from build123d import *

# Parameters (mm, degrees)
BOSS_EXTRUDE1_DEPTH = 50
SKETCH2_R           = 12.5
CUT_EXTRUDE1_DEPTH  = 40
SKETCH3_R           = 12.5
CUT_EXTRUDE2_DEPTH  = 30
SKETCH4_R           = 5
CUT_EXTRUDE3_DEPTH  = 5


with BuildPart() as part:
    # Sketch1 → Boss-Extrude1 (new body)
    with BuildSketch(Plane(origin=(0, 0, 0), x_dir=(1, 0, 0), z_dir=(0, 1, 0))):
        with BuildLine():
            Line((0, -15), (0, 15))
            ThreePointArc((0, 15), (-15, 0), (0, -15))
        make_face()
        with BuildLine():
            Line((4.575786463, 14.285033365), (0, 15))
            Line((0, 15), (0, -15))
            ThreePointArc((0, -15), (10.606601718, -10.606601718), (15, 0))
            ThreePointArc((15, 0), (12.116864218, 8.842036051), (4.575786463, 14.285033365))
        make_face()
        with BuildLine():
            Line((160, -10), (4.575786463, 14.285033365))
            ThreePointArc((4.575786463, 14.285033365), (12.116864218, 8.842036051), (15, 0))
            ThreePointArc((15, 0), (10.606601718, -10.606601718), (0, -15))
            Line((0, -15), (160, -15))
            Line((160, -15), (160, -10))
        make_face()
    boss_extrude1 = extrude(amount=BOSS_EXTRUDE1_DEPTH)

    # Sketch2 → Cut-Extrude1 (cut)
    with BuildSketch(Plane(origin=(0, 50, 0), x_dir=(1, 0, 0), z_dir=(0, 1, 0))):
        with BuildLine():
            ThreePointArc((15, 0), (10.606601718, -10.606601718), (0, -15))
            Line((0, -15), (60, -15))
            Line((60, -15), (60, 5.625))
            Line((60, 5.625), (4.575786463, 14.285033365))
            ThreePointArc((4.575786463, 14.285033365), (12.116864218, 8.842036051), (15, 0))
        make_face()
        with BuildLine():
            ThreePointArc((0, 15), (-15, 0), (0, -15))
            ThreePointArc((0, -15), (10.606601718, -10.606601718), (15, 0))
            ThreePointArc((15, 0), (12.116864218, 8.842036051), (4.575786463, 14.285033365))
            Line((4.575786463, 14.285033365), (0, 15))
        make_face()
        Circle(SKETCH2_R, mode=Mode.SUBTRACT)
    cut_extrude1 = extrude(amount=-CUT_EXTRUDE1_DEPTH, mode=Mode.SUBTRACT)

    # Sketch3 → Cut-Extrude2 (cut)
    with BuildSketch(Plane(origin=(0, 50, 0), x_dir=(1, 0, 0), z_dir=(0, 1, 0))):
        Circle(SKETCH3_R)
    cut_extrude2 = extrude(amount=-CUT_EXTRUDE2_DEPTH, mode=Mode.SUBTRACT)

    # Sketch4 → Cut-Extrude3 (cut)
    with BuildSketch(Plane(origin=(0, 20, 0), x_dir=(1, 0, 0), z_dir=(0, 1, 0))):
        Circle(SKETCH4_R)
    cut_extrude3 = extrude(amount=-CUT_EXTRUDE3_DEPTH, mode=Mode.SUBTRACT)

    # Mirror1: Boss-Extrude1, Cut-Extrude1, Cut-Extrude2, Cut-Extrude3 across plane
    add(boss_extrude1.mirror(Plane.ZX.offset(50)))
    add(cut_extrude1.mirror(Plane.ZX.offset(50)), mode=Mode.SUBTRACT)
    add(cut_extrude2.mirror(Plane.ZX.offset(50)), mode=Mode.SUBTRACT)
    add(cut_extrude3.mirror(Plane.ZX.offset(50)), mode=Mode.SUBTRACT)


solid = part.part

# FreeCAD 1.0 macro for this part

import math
import FreeCAD as App
import Part
import Sketcher

V = App.Vector
Q = App.Units.Quantity

doc = App.newDocument("Part")
params = doc.addObject("Spreadsheet::Sheet", "Params")
for row, (alias, value) in enumerate([
    ("sketch1_radius", "15 mm"),
    ("sketch1_width", "160 mm"),
    ("sketch1_height", "5 mm"),
    ("pad1_length", "50 mm"),
    ("sketch2_diameter", "25 mm"),
    ("sketch2_radius", "15 mm"),
    ("sketch2_width", "60 mm"),
    ("pocket1_length", "40 mm"),
    ("sketch3_diameter", "25 mm"),
    ("pocket2_length", "30 mm"),
    ("sketch4_diameter", "10 mm"),
    ("pocket3_length", "5 mm"),
], start=1):
    params.set(f"A{row}", alias)
    params.set(f"B{row}", "=" + value)
    params.setAlias(f"B{row}", alias)

body = doc.addObject("PartDesign::Body", "Body")

# Sketch on XZ plane
sketch1 = doc.addObject("Sketcher::SketchObject", "Sketch")
body.addObject(sketch1)
sketch1.AttachmentSupport = (doc.XZ_Plane, [""])
sketch1.MapMode = "FlatFace"
sketch1.addGeometry([
    Part.ArcOfCircle(Part.Circle(V(0, 0, 0), V(0, 0, 1), 15), math.radians(90), math.radians(270)),  # 0
    Part.LineSegment(V(0, 15, 0), V(160, 15, 0)),  # 1
    Part.LineSegment(V(160, 15, 0), V(160, 10, 0)),  # 2
    Part.LineSegment(V(160, 10, 0), V(4.6, -14.3, 0)),  # 3
    Part.LineSegment(V(4.6, -14.3, 0), V(0, -15, 0)),  # 4
], False)
sketch1.addConstraint([
    Sketcher.Constraint("Tangent", 0, 1, 1, 1),
    Sketcher.Constraint("Coincident", 1, 2, 2, 1),
    Sketcher.Constraint("Coincident", 2, 2, 3, 1),
    Sketcher.Constraint("Coincident", 3, 2, 4, 1),
    Sketcher.Constraint("Coincident", 4, 2, 0, 2),
    Sketcher.Constraint("Horizontal", 1),
    Sketcher.Constraint("Vertical", 2),
    Sketcher.Constraint("Coincident", 0, 3, -1, 1),
    Sketcher.Constraint("PointOnObject", 4, 2, -2),
    Sketcher.Constraint("Parallel", 3, 4),
    Sketcher.Constraint("Radius", 0, Q("15 mm")),
    Sketcher.Constraint("DistanceX", 1, 1, 1, 2, Q("160 mm")),
    Sketcher.Constraint("DistanceY", 2, 2, 2, 1, Q("5 mm")),
    Sketcher.Constraint("Distance", 3, Q("157.310041 mm")),
])
sketch1.setExpression("Constraints[10]", "Params.sketch1_radius")
sketch1.setExpression("Constraints[11]", "Params.sketch1_width")
sketch1.setExpression("Constraints[12]", "Params.sketch1_height")
pad1 = doc.addObject("PartDesign::Pad", "Pad")
body.addObject(pad1)
pad1.Profile = sketch1
pad1.setExpression("Length", "Params.pad1_length")
pad1.Reversed = True

# Sketch on XZ plane
sketch2 = doc.addObject("Sketcher::SketchObject", "Sketch001")
body.addObject(sketch2)
sketch2.AttachmentSupport = (doc.XZ_Plane, [""])
sketch2.MapMode = "FlatFace"
sketch2.AttachmentOffset = App.Placement(V(0, 0, -50), App.Rotation())
sketch2.addGeometry([
    Part.LineSegment(V(0, 15, 0), V(60, 15, 0)),  # 0
    Part.LineSegment(V(60, 15, 0), V(60, -5.6, 0)),  # 1
    Part.LineSegment(V(60, -5.6, 0), V(4.6, -14.3, 0)),  # 2
    Part.LineSegment(V(4.6, -14.3, 0), V(0, -15, 0)),  # 3
    Part.ArcOfCircle(Part.Circle(V(0, 0, 0), V(0, 0, 1), 15), math.radians(90), math.radians(270)),  # 4
    Part.Circle(V(0, 0, 0), V(0, 0, 1), 12.5),  # 5
], False)
sketch2.addConstraint([
    Sketcher.Constraint("Coincident", 0, 2, 1, 1),
    Sketcher.Constraint("Coincident", 1, 2, 2, 1),
    Sketcher.Constraint("Coincident", 2, 2, 3, 1),
    Sketcher.Constraint("Coincident", 3, 2, 4, 2),
    Sketcher.Constraint("Tangent", 4, 1, 0, 1),
    Sketcher.Constraint("Horizontal", 0),
    Sketcher.Constraint("Vertical", 1),
    Sketcher.Constraint("Coincident", 4, 3, -1, 1),
    Sketcher.Constraint("Coincident", 5, 3, -1, 1),
    Sketcher.Constraint("PointOnObject", 3, 2, -2),
    Sketcher.Constraint("Parallel", 2, 3),
    Sketcher.Constraint("Diameter", 5, Q("25 mm")),
    Sketcher.Constraint("Radius", 4, Q("15 mm")),
    Sketcher.Constraint("DistanceX", 0, 1, 0, 2, Q("60 mm")),
    Sketcher.Constraint("DistanceY", 1, 2, 1, 1, Q("20.625 mm")),
    Sketcher.Constraint("Distance", 2, Q("56.096699 mm")),
])
sketch2.setExpression("Constraints[11]", "Params.sketch2_diameter")
sketch2.setExpression("Constraints[12]", "Params.sketch2_radius")
sketch2.setExpression("Constraints[13]", "Params.sketch2_width")
pocket1 = doc.addObject("PartDesign::Pocket", "Pocket")
body.addObject(pocket1)
pocket1.Profile = sketch2
pocket1.setExpression("Length", "Params.pocket1_length")
pocket1.Reversed = True

# Sketch on XZ plane
sketch3 = doc.addObject("Sketcher::SketchObject", "Sketch002")
body.addObject(sketch3)
sketch3.AttachmentSupport = (doc.XZ_Plane, [""])
sketch3.MapMode = "FlatFace"
sketch3.AttachmentOffset = App.Placement(V(0, 0, -50), App.Rotation())
sketch3.addGeometry(Part.Circle(V(0, 0, 0), V(0, 0, 1), 12), False)
sketch3.addConstraint([
    Sketcher.Constraint("Coincident", 0, 3, -1, 1),
    Sketcher.Constraint("Diameter", 0, Q("25 mm")),
])
sketch3.setExpression("Constraints[1]", "Params.sketch3_diameter")
pocket2 = doc.addObject("PartDesign::Pocket", "Pocket001")
body.addObject(pocket2)
pocket2.Profile = sketch3
pocket2.setExpression("Length", "Params.pocket2_length")
pocket2.Reversed = True

# Sketch on XZ plane
sketch4 = doc.addObject("Sketcher::SketchObject", "Sketch003")
body.addObject(sketch4)
sketch4.AttachmentSupport = (doc.XZ_Plane, [""])
sketch4.MapMode = "FlatFace"
sketch4.AttachmentOffset = App.Placement(V(0, 0, -20), App.Rotation())
sketch4.addGeometry(Part.Circle(V(0, 0, 0), V(0, 0, 1), 5), False)
sketch4.addConstraint([
    Sketcher.Constraint("Coincident", 0, 3, -1, 1),
    Sketcher.Constraint("Diameter", 0, Q("10 mm")),
])
sketch4.setExpression("Constraints[1]", "Params.sketch4_diameter")
pocket3 = doc.addObject("PartDesign::Pocket", "Pocket002")
body.addObject(pocket3)
pocket3.Profile = sketch4
pocket3.setExpression("Length", "Params.pocket3_length")
pocket3.Reversed = True
doc.recompute()

datumplane = doc.addObject("PartDesign::Plane", "DatumPlane")
body.addObject(datumplane)
datumplane.AttachmentSupport = (doc.XZ_Plane, [""])
datumplane.MapMode = "FlatFace"
datumplane.AttachmentOffset = App.Placement(V(0, 0, -50), App.Rotation())
mirrored = doc.addObject("PartDesign::Mirrored", "Mirrored")
body.addObject(mirrored)
mirrored.Originals = [pad1, pocket1, pocket2, pocket3]
mirrored.MirrorPlane = (datumplane, [""])
body.Tip = mirrored

doc.recompute()
